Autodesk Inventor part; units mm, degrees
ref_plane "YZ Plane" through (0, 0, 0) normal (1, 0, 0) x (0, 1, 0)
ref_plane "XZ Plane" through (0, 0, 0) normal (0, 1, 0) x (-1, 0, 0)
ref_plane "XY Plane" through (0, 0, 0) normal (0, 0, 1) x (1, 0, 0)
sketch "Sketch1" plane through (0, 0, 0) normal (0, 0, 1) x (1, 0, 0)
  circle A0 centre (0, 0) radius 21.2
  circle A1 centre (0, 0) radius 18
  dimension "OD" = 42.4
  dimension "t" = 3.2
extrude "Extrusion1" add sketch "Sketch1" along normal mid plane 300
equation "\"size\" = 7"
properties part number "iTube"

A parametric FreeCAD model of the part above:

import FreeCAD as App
import Part
import Sketcher
from FreeCAD import Vector

doc = App.newDocument("Part")
body = doc.addObject("PartDesign::Body", "Body")

sketch1 = body.newObject("Sketcher::SketchObject", "Sketch")
sketch1.AttachmentSupport = (doc.getObject("XY_Plane"), [""])
sketch1.MapMode = "FlatFace"
sketch1.addGeometry([
    Part.Circle(Vector(0, 0, 0), Vector(0, 0, 1), 21.2),
    Part.Circle(Vector(0, 0, 0), Vector(0, 0, 1), 18),
], False)
sketch1.addConstraint([
    Sketcher.Constraint("Coincident", 0, 3, -1, 1),
    Sketcher.Constraint("Coincident", 1, 3, -1, 1),
    Sketcher.Constraint("Diameter", 0, 42.4),
    Sketcher.Constraint("Diameter", 1, 36.0),
])
pad1 = body.newObject("PartDesign::Pad", "Pad")
pad1.Profile = sketch1
pad1.Length = 300
pad1.Midplane = True

doc.recompute()
